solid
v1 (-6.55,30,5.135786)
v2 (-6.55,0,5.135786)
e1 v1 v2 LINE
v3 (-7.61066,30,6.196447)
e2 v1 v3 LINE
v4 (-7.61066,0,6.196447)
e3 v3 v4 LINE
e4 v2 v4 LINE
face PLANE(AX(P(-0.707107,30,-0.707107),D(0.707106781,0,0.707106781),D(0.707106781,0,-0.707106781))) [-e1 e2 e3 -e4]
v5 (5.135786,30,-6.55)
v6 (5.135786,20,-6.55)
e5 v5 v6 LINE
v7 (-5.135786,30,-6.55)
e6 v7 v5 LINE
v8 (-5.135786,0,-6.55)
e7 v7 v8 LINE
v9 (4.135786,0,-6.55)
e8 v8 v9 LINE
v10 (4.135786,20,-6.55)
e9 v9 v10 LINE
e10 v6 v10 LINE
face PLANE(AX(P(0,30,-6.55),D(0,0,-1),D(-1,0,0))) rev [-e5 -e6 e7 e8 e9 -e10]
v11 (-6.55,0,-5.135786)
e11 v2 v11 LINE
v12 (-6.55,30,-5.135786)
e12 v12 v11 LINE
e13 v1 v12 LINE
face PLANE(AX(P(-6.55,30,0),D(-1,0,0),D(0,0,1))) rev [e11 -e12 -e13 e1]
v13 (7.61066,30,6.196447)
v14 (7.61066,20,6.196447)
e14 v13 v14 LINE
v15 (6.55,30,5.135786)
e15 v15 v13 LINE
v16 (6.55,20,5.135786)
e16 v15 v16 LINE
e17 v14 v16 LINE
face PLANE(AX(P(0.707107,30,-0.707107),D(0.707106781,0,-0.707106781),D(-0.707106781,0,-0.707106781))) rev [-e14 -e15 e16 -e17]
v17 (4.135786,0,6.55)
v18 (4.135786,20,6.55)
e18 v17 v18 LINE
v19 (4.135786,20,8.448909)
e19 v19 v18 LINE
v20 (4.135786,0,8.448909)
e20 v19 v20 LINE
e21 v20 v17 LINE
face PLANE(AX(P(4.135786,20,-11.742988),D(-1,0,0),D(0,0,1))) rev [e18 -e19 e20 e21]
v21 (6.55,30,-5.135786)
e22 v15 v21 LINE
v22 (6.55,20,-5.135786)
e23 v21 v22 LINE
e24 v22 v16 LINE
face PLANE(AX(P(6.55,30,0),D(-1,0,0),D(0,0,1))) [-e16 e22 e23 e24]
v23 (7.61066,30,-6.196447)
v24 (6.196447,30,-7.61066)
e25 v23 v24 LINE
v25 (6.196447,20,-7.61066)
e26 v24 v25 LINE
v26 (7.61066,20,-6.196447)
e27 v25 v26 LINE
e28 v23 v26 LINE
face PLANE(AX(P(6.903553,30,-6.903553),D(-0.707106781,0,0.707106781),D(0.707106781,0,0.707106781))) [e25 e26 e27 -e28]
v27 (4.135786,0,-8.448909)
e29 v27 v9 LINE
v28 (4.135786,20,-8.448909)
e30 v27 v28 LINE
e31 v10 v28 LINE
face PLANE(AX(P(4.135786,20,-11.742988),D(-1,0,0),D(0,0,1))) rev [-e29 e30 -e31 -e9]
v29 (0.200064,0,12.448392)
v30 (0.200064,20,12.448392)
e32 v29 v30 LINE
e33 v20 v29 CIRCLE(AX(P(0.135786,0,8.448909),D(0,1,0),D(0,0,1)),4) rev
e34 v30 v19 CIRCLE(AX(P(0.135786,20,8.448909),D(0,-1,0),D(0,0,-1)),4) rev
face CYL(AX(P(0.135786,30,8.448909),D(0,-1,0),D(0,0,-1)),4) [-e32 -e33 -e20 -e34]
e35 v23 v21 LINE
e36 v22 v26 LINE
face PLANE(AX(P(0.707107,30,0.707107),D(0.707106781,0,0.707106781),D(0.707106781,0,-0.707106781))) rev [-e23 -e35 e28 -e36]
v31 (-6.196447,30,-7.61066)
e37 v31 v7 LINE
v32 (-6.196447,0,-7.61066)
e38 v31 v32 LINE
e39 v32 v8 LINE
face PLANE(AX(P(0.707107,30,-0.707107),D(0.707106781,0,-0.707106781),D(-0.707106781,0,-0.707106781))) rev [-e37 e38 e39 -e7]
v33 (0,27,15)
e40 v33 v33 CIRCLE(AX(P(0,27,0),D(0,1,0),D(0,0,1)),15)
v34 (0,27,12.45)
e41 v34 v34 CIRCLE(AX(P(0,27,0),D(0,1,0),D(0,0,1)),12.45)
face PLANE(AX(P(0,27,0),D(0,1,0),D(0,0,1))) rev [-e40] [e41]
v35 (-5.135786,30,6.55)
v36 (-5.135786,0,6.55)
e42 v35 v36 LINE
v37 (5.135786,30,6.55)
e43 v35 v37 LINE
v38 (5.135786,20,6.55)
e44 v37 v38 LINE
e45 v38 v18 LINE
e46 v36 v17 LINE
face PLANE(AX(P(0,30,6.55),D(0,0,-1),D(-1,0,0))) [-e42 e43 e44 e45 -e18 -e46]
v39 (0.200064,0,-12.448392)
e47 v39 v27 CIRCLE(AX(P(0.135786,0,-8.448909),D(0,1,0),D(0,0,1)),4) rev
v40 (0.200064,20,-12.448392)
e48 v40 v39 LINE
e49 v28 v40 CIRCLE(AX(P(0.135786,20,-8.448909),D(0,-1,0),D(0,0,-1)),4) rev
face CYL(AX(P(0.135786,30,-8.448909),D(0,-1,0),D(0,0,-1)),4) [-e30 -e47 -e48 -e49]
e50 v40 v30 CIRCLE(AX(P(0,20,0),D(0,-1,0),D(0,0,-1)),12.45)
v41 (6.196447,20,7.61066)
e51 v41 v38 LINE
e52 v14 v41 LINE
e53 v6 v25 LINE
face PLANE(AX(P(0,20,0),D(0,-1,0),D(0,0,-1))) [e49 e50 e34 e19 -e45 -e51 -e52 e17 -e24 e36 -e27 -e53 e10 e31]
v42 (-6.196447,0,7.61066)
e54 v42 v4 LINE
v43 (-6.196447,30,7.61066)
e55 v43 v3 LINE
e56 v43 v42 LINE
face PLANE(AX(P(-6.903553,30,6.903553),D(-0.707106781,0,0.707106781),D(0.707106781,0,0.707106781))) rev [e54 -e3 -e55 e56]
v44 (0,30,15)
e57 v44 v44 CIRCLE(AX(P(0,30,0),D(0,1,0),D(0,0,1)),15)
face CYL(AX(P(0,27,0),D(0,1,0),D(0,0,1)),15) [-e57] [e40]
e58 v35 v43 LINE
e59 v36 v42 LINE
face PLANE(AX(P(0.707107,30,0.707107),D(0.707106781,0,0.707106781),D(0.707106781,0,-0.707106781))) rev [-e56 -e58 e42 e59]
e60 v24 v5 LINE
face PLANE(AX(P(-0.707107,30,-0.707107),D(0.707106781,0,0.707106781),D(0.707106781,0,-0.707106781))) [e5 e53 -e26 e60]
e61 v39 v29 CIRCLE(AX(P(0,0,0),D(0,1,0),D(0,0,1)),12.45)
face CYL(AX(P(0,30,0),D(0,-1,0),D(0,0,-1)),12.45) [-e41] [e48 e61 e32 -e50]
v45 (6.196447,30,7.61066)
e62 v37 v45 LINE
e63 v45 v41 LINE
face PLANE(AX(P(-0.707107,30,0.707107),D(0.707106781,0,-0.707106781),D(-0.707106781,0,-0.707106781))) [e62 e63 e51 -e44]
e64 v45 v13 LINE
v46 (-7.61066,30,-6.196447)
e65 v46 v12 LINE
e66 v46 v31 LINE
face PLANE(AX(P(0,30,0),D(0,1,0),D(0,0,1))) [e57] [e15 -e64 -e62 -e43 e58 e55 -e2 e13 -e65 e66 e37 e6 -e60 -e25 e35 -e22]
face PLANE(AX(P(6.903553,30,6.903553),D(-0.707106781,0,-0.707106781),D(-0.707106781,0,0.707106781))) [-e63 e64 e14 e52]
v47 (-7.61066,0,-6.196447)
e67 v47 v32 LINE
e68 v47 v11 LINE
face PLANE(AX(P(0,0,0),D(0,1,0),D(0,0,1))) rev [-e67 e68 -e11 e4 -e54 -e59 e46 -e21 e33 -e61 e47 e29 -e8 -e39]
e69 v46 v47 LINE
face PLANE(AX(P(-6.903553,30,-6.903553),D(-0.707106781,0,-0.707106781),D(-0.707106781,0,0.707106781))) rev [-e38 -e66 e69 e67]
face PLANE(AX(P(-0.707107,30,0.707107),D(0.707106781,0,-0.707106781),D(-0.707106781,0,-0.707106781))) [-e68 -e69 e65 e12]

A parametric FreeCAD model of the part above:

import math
import FreeCAD as App
import Part
import Sketcher
from FreeCAD import Vector
Q = App.Units.Quantity


def edges_at(feature, points):
    """Names of the edges that pass closest to the given points."""
    edges = feature.Shape.Edges
    near = lambda p: min(range(len(edges)), key=lambda i: edges[i].distToShape(Part.Vertex(*p))[0])
    return sorted({f"Edge{near(p) + 1}" for p in points})


def add_polygon(sketch, points):
    """Adds a closed chain of lines whose ends are joined by coincident constraints."""
    first, n = sketch.GeometryCount, len(points)
    for a, b in zip(points, points[1:] + points[:1]):
        sketch.addGeometry(Part.LineSegment(App.Vector(*a, 0), App.Vector(*b, 0)), False)
    for i in range(n):
        sketch.addConstraint(Sketcher.Constraint("Coincident", first + i, 2, first + (i + 1) % n, 1))

doc = App.newDocument("Part")
params = doc.addObject("Spreadsheet::Sheet", "Params")
for row, (alias, value) in enumerate([
    ("sketch1_diameter", "24.9 mm"),
    ("sketch1_length", "2 mm"),
    ("sketch1_length2", "1.5 mm"),
    ("pad1_length", "30 mm"),
    ("sketch2_diameter", "30 mm"),
    ("sketch2_diameter2", "24.9 mm"),
    ("pad2_length", "3 mm"),
    ("sketch3_radius", "12.45 mm"),
    ("pocket1_length", "20 mm"),
    ("fillet_radius", "4 mm"),
], start=1):
    params.set(f"A{row}", alias)
    params.set(f"B{row}", "=" + value)
    params.setAlias(f"B{row}", alias)

body = doc.addObject("PartDesign::Body", "Body")

# Sketch on XZ plane
sketch1 = body.newObject("Sketcher::SketchObject", "Sketch")
sketch1.AttachmentSupport = (doc.getObject("XZ_Plane"), [""])
sketch1.MapMode = "FlatFace"
sketch1.addGeometry(Part.Circle(Vector(0, 0, 0), Vector(0, 0, 1), 12.4), False)  # 0
add_polygon(sketch1, [(5.1, -6.5), (6.2, -7.6), (7.6, -6.2), (6.5, -5.1), (6.5, 5.1), (7.6, 6.2), (6.2, 7.6), (5.1, 6.5), (-5.1, 6.5), (-6.2, 7.6), (-7.6, 6.2), (-6.5, 5.1), (-6.5, -5.1), (-7.6, -6.2), (-6.2, -7.6), (-5.1, -6.5)])  # lines 1-16
sketch1.addConstraint([
    Sketcher.Constraint("Vertical", 4),
    Sketcher.Constraint("Horizontal", 8),
    Sketcher.Constraint("Vertical", 12),
    Sketcher.Constraint("Horizontal", 16),
    Sketcher.Constraint("Coincident", 0, 3, -1, 1),
    Sketcher.Constraint("Symmetric", 1, 2, 9, 2, -1, 1),
    Sketcher.Constraint("Symmetric", 2, 2, 10, 2, -1, 1),
    Sketcher.Constraint("Symmetric", 3, 2, 11, 2, -1, 1),
    Sketcher.Constraint("Symmetric", 5, 2, 13, 2, -1, 1),
    Sketcher.Constraint("Symmetric", 6, 2, 14, 2, -1, 1),
    Sketcher.Constraint("Symmetric", 7, 2, 15, 2, -1, 1),
    Sketcher.Constraint("Symmetric", 6, 2, 9, 2, -2),
    Sketcher.Constraint("Symmetric", 5, 2, 10, 2, -2),
    Sketcher.Constraint("Perpendicular", 1, 2),
    Sketcher.Constraint("Perpendicular", 2, 3),
    Sketcher.Constraint("Perpendicular", 3, 5),
    Sketcher.Constraint("Perpendicular", 5, 6),
    Sketcher.Constraint("Perpendicular", 6, 7),
    Sketcher.Constraint("Perpendicular", 7, 9),
    Sketcher.Constraint("Perpendicular", 11, 13),
    Sketcher.Constraint("Equal", 16, 4),
    Sketcher.Constraint("Equal", 1, 3),
    Sketcher.Constraint("Diameter", 0, Q("24.9 mm")),
    Sketcher.Constraint("Distance", 2, Q("2 mm")),
    Sketcher.Constraint("Distance", 1, Q("1.5 mm")),
    Sketcher.Constraint("DistanceX", -1, 1, 3, 2, Q("6.55 mm")),
])
sketch1.setExpression("Constraints[38]", "Params.sketch1_diameter")
sketch1.setExpression("Constraints[39]", "Params.sketch1_length")
sketch1.setExpression("Constraints[40]", "Params.sketch1_length2")
pad1 = body.newObject("PartDesign::Pad", "Pad")
pad1.Profile = sketch1
pad1.setExpression("Length", "Params.pad1_length")
pad1.Reversed = True

# Sketch on XZ plane
sketch2 = body.newObject("Sketcher::SketchObject", "Sketch001")
sketch2.AttachmentSupport = (doc.getObject("XZ_Plane"), [""])
sketch2.MapMode = "FlatFace"
sketch2.AttachmentOffset = App.Placement(Vector(0, 0, -27), App.Rotation())
sketch2.addGeometry([
    Part.Circle(Vector(0, 0, 0), Vector(0, 0, 1), 15),
    Part.Circle(Vector(0, 0, 0), Vector(0, 0, 1), 12),
], False)
sketch2.addConstraint([
    Sketcher.Constraint("Coincident", 0, 3, -1, 1),
    Sketcher.Constraint("Coincident", 1, 3, -1, 1),
    Sketcher.Constraint("Diameter", 0, Q("30 mm")),
    Sketcher.Constraint("Diameter", 1, Q("24.9 mm")),
])
sketch2.setExpression("Constraints[2]", "Params.sketch2_diameter")
sketch2.setExpression("Constraints[3]", "Params.sketch2_diameter2")
pad2 = body.newObject("PartDesign::Pad", "Pad001")
pad2.Profile = sketch2
pad2.setExpression("Length", "Params.pad2_length")
pad2.Reversed = True

# Sketch on XZ plane
sketch3 = body.newObject("Sketcher::SketchObject", "Sketch002")
sketch3.AttachmentSupport = (doc.getObject("XZ_Plane"), [""])
sketch3.MapMode = "FlatFace"
sketch3.addGeometry([
    Part.LineSegment(Vector(4, 12, 0), Vector(4, -12, 0)),
    Part.ArcOfCircle(Part.Circle(Vector(0, 0, 0), Vector(0, 0, 1), 12), math.radians(-71), math.radians(71)),
], False)
sketch3.addConstraint([
    Sketcher.Constraint("Coincident", 0, 1, 1, 2),
    Sketcher.Constraint("Coincident", 1, 1, 0, 2),
    Sketcher.Constraint("Vertical", 0),
    Sketcher.Constraint("Coincident", 1, 3, -1, 1),
    Sketcher.Constraint("Radius", 1, Q("12.45 mm")),
    Sketcher.Constraint("DistanceY", 0, 2, 0, 1, Q("23.485976 mm")),
])
sketch3.setExpression("Constraints[4]", "Params.sketch3_radius")
pocket1 = body.newObject("PartDesign::Pocket", "Pocket")
pocket1.Profile = sketch3
pocket1.setExpression("Length", "Params.pocket1_length")
doc.recompute()

fillet = body.newObject("PartDesign::Fillet", "Fillet")
fillet.Base = (pocket1, edges_at(pocket1, [(4.136, 10, -11.743), (4.136, 10, 11.743)]))
fillet.setExpression("Radius", "Params.fillet_radius")

doc.recompute()
